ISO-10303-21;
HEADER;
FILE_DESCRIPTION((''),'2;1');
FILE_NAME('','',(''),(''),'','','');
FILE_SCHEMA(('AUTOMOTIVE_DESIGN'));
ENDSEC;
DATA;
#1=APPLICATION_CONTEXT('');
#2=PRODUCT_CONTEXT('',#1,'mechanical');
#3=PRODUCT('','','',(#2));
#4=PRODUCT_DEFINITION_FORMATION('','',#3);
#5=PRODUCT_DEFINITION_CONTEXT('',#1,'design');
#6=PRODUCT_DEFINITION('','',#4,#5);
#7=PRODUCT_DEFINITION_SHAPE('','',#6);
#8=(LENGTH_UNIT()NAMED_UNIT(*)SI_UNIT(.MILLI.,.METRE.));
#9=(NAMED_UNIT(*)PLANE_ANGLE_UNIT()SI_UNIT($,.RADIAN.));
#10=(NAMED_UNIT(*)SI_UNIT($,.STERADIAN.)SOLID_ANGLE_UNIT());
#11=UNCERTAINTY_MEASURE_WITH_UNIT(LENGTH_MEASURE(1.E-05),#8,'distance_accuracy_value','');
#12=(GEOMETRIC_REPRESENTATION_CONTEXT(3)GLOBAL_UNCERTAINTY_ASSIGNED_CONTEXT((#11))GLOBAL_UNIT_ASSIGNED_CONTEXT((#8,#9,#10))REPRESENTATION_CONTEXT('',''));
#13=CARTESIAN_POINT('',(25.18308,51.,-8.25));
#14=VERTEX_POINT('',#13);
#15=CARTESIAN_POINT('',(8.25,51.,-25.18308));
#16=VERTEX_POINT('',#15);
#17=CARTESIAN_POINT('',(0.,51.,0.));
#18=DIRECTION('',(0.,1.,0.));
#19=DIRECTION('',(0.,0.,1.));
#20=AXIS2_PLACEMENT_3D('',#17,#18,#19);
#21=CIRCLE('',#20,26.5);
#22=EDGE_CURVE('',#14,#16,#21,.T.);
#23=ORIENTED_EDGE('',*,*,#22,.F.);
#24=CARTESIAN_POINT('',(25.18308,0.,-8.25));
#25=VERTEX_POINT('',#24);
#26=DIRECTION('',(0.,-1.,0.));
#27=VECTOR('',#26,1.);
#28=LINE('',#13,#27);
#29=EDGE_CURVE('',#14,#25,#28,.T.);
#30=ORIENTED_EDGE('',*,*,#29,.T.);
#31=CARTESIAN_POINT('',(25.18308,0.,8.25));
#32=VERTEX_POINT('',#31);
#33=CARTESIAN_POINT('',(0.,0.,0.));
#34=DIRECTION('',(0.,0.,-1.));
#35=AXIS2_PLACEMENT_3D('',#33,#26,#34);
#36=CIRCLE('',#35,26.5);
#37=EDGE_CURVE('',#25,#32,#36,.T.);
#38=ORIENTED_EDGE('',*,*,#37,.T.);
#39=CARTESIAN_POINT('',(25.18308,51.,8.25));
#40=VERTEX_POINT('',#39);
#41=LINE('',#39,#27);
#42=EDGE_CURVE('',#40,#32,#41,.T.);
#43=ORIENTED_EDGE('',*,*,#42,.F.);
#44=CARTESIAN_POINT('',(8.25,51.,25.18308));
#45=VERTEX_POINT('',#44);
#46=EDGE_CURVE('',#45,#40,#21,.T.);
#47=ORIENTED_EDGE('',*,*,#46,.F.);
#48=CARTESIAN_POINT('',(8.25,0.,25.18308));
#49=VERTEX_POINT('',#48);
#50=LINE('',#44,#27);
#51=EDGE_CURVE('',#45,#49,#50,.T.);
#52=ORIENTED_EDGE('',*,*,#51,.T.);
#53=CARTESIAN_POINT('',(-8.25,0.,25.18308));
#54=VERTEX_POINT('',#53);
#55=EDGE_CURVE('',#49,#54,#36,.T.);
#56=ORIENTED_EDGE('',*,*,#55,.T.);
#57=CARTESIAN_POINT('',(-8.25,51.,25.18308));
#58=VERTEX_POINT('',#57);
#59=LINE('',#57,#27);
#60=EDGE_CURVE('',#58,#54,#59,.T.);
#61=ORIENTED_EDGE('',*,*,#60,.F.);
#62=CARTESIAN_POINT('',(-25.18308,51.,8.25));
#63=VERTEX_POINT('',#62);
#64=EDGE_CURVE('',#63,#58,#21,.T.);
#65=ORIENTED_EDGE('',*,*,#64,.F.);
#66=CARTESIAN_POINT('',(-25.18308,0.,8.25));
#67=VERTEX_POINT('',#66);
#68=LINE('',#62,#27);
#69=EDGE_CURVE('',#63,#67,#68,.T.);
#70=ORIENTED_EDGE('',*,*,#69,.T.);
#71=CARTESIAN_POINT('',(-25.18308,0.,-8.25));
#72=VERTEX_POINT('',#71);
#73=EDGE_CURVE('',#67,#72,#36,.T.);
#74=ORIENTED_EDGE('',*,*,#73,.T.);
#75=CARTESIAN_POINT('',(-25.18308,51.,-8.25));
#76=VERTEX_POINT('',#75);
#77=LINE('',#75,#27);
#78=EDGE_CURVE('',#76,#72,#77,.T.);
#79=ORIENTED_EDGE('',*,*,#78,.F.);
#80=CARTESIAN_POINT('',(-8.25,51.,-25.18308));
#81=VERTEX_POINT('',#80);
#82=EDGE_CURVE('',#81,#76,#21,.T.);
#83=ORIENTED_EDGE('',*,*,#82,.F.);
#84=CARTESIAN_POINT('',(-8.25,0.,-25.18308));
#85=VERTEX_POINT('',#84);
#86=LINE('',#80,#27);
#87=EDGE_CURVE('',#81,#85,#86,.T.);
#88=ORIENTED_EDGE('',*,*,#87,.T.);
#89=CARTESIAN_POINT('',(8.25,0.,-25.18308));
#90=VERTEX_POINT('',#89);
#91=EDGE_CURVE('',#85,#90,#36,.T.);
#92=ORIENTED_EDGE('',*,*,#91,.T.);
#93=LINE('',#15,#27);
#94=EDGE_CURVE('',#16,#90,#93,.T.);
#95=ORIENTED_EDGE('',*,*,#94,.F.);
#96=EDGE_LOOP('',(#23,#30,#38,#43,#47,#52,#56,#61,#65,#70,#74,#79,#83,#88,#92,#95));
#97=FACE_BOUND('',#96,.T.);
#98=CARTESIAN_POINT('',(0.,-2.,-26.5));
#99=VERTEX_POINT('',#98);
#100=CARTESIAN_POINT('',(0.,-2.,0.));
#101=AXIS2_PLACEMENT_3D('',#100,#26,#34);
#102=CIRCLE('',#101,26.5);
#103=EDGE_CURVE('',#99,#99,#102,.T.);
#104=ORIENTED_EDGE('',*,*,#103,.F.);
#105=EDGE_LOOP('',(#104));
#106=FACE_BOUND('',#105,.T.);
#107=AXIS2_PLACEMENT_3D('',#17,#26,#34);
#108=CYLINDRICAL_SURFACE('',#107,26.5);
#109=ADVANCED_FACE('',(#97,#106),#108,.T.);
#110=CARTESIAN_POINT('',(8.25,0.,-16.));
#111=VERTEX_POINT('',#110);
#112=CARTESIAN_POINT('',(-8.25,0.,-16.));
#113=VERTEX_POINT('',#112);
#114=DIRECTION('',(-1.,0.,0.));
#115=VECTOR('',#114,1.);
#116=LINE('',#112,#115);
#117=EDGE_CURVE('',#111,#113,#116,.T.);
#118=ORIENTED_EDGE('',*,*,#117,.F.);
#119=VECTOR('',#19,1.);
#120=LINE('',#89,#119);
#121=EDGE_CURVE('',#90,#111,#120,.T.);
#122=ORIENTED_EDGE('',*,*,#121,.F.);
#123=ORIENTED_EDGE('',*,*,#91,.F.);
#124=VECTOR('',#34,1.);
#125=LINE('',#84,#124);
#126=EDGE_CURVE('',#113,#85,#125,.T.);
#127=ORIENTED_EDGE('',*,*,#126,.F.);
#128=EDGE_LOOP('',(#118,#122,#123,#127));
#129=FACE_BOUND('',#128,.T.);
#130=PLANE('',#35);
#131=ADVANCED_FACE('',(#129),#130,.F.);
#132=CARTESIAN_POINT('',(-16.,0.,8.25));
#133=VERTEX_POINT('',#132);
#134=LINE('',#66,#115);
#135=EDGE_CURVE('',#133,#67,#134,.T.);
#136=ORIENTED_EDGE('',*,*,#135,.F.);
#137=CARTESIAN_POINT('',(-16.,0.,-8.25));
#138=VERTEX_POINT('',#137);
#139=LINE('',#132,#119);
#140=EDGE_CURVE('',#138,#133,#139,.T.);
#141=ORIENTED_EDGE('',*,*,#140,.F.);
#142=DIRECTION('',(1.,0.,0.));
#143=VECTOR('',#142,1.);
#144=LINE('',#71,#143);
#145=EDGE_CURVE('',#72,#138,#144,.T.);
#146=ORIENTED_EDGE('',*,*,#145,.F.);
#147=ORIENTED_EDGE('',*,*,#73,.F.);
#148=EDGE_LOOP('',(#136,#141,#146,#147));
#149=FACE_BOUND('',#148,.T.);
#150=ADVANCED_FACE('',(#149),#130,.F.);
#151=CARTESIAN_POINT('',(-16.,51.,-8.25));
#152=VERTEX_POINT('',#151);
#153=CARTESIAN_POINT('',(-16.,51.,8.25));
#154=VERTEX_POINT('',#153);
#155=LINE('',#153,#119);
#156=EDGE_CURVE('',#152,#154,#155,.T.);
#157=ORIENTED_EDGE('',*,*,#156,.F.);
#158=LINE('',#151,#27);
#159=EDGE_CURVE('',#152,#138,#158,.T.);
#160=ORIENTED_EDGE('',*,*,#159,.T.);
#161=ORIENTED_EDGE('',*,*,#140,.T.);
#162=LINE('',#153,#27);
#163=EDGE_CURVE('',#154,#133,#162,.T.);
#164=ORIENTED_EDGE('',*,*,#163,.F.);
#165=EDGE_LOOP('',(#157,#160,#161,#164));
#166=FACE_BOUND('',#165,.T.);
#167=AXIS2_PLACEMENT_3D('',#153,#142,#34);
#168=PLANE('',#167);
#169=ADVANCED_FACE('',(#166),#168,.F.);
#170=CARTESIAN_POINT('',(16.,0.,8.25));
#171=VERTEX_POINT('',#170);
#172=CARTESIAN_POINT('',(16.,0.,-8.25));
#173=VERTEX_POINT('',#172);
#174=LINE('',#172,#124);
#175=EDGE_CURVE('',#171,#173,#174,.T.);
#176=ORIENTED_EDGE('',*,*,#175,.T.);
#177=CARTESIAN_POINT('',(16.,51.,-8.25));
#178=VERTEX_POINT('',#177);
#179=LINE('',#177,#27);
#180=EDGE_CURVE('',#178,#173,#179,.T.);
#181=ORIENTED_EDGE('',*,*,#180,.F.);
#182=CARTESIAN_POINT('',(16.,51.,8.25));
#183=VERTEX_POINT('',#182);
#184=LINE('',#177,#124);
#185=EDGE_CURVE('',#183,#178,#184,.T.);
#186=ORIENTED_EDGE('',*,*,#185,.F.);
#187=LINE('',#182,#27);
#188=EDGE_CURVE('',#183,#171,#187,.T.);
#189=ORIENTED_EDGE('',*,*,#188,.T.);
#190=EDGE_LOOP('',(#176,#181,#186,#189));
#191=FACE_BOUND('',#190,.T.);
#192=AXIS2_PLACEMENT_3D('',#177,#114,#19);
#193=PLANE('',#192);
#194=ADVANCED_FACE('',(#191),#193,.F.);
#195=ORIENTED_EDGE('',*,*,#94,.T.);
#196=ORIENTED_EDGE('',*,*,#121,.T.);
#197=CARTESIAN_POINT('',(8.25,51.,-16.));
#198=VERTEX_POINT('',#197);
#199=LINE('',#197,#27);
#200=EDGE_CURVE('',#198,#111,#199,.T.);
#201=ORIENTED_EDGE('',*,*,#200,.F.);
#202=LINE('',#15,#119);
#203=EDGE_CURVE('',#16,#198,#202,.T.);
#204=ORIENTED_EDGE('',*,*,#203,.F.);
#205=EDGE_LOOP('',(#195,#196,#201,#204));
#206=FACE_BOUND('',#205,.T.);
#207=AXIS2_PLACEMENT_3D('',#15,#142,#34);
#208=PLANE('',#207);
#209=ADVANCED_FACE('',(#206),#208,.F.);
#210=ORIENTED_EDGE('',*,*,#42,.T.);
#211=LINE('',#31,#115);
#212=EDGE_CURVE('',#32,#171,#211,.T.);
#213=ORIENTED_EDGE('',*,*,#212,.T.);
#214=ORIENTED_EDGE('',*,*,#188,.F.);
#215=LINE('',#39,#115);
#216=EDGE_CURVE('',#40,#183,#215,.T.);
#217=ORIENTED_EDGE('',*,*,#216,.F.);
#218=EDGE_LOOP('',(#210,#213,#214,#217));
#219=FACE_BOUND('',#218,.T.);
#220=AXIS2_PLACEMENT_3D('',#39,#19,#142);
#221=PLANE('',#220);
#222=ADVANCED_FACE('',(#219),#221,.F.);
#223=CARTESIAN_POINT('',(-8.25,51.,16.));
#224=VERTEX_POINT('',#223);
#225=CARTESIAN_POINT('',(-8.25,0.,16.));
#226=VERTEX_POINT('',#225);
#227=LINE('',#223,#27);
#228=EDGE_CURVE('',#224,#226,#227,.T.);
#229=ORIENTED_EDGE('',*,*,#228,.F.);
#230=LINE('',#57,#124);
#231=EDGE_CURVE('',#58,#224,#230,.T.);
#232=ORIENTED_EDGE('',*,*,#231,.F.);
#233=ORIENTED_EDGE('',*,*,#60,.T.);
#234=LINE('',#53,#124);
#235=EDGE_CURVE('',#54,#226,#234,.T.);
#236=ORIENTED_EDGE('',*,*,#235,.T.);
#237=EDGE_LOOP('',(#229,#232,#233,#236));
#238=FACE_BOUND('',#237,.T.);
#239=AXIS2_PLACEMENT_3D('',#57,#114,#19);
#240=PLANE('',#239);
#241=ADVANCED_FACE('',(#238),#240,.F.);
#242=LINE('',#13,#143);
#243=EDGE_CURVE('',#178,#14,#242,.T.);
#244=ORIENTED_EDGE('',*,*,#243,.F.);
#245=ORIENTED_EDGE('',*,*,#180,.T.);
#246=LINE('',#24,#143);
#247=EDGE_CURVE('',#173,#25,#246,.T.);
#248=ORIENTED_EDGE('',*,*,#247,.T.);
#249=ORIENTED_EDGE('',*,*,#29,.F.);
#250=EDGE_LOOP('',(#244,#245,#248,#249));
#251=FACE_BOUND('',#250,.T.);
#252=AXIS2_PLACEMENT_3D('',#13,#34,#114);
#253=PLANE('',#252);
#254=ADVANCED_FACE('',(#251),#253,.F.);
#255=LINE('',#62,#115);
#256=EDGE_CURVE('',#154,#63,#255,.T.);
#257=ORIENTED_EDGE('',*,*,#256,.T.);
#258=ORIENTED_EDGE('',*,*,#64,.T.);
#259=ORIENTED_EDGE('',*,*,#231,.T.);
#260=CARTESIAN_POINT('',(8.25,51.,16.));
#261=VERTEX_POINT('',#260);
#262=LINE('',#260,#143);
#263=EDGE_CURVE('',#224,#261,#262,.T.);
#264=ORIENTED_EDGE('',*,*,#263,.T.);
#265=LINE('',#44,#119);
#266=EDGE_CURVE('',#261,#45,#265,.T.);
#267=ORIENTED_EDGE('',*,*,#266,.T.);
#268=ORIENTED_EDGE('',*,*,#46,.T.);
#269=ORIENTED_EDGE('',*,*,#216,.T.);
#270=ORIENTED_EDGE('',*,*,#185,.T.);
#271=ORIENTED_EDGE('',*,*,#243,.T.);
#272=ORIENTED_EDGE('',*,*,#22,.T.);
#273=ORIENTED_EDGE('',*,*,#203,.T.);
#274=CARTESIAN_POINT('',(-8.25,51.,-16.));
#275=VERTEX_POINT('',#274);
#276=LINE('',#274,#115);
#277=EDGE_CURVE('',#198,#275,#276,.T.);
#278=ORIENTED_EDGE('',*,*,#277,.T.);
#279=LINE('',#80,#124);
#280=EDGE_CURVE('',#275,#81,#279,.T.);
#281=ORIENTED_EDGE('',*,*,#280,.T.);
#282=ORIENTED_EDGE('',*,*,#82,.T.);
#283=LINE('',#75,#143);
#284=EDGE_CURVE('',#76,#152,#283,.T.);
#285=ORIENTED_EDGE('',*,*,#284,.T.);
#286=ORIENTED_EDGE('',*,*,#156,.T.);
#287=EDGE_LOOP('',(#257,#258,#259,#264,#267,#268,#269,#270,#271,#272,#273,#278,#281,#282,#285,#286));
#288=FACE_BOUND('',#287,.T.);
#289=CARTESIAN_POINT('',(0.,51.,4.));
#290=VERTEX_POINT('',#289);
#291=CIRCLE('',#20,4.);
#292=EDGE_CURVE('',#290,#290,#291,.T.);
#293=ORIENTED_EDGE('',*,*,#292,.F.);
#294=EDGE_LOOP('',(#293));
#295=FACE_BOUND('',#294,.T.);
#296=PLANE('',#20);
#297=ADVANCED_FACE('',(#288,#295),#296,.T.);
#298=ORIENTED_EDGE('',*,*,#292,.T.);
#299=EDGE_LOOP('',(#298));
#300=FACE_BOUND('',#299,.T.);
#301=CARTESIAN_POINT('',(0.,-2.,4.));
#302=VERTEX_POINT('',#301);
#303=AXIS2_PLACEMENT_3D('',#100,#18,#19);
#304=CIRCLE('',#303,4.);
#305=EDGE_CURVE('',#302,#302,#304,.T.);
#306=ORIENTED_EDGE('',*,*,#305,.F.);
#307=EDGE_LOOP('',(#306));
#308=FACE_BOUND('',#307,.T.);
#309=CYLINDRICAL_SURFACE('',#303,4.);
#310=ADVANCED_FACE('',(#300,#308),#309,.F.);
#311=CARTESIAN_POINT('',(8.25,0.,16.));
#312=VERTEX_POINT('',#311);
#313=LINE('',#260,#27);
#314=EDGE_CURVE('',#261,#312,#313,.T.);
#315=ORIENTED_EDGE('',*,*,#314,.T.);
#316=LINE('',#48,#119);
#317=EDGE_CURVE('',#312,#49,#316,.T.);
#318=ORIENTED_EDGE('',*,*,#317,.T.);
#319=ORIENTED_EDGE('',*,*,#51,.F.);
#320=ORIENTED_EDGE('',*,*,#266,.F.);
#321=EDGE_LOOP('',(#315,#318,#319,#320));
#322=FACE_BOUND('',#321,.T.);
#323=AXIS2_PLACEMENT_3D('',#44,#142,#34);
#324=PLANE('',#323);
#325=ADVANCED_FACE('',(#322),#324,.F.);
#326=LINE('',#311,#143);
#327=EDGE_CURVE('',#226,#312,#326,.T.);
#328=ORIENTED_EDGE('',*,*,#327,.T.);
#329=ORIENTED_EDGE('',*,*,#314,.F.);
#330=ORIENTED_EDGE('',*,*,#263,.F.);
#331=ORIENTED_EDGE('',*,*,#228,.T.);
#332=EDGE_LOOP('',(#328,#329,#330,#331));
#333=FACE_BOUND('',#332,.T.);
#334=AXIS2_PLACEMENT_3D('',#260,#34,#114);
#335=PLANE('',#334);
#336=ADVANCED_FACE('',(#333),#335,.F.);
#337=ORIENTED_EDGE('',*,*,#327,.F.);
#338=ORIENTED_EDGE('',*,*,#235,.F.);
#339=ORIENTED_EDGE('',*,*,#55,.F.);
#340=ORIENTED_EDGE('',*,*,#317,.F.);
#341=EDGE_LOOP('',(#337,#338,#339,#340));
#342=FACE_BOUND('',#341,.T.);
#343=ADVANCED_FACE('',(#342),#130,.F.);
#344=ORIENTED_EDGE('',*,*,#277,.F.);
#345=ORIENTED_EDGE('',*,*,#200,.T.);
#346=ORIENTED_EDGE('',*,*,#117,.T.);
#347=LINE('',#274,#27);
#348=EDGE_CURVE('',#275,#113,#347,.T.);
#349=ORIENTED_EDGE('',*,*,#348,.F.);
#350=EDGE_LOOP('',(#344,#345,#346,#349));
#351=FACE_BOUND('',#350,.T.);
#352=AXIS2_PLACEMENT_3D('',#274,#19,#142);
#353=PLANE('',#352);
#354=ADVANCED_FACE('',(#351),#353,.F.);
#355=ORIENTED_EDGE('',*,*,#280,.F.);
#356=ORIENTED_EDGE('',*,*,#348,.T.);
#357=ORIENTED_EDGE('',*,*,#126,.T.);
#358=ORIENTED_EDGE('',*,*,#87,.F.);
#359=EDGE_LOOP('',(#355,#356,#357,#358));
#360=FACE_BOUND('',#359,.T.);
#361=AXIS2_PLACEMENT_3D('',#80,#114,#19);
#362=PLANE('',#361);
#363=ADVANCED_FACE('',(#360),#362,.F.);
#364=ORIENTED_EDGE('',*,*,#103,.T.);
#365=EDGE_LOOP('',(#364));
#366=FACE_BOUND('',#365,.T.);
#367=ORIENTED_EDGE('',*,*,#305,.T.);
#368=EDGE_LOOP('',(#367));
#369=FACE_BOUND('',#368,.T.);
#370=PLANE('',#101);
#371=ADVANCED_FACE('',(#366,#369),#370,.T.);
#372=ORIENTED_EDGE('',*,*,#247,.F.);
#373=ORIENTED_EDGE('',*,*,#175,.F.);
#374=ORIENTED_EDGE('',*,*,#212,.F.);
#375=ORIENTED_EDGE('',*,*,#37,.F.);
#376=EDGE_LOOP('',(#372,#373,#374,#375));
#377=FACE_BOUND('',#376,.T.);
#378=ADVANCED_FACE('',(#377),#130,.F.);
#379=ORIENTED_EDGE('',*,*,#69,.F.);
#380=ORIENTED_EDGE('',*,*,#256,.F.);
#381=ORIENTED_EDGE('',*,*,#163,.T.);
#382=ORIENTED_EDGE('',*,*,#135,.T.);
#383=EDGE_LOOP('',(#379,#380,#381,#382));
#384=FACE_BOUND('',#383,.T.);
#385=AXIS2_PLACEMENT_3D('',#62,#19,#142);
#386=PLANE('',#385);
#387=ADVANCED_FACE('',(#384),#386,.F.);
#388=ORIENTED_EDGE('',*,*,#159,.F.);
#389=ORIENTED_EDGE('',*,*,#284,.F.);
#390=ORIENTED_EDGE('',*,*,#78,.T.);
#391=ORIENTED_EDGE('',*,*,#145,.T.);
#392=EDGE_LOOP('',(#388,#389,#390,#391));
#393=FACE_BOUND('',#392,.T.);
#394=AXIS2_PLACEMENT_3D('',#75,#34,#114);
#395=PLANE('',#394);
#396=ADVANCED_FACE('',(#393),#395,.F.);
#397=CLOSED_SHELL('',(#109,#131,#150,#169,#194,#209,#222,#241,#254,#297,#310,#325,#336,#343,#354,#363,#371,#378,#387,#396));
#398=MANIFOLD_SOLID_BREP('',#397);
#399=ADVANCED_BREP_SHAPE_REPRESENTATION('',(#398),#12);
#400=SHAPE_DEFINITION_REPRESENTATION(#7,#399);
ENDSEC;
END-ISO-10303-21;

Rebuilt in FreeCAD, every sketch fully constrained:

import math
import FreeCAD as App
import Part
import Sketcher
from FreeCAD import Vector
Q = App.Units.Quantity

doc = App.newDocument("Part")
params = doc.addObject("Spreadsheet::Sheet", "Params")
for row, (alias, value) in enumerate([
    ("sketch1_radius", "26.5 mm"),
    ("sketch1_width", "16.5 mm"),
    ("pad1_length", "51 mm"),
    ("sketch2_diameter", "53 mm"),
    ("pad2_length", "2 mm"),
    ("sketch3_diameter", "8 mm"),
], start=1):
    params.set(f"A{row}", alias)
    params.set(f"B{row}", "=" + value)
    params.setAlias(f"B{row}", alias)

body = doc.addObject("PartDesign::Body", "Body")

# Sketch on XZ plane
sketch1 = body.newObject("Sketcher::SketchObject", "Sketch")
sketch1.AttachmentSupport = (doc.getObject("XZ_Plane"), [""])
sketch1.MapMode = "FlatFace"
sketch1.addGeometry([
    Part.LineSegment(Vector(-8, -16, 0), Vector(-8, -25, 0)),  # 0
    Part.ArcOfCircle(Part.Circle(Vector(0, 0, 0), Vector(0, 0, 1), 27), math.radians(-162), math.radians(-108)),  # 1
    Part.LineSegment(Vector(-25, -8, 0), Vector(-16, -8, 0)),  # 2
    Part.LineSegment(Vector(-16, -8, 0), Vector(-16, 8, 0)),  # 3
    Part.LineSegment(Vector(-16, 8, 0), Vector(-25, 8, 0)),  # 4
    Part.ArcOfCircle(Part.Circle(Vector(0, 0, 0), Vector(0, 0, 1), 27), math.radians(108), math.radians(162)),  # 5
    Part.LineSegment(Vector(-8, 25, 0), Vector(-8, 16, 0)),  # 6
    Part.LineSegment(Vector(-8, 16, 0), Vector(8, 16, 0)),  # 7
    Part.LineSegment(Vector(8, 16, 0), Vector(8, 25, 0)),  # 8
    Part.ArcOfCircle(Part.Circle(Vector(0, 0, 0), Vector(0, 0, 1), 27), math.radians(18), math.radians(72)),  # 9
    Part.LineSegment(Vector(25, 8, 0), Vector(16, 8, 0)),  # 10
    Part.LineSegment(Vector(16, 8, 0), Vector(16, -8, 0)),  # 11
    Part.LineSegment(Vector(16, -8, 0), Vector(25, -8, 0)),  # 12
    Part.ArcOfCircle(Part.Circle(Vector(0, 0, 0), Vector(0, 0, 1), 27), math.radians(-72), math.radians(-18)),  # 13
    Part.LineSegment(Vector(8, -25, 0), Vector(8, -16, 0)),  # 14
    Part.LineSegment(Vector(8, -16, 0), Vector(-8, -16, 0)),  # 15
], False)
sketch1.addConstraint([
    Sketcher.Constraint("Coincident", 0, 2, 1, 2),
    Sketcher.Constraint("Coincident", 1, 1, 2, 1),
    Sketcher.Constraint("Coincident", 2, 2, 3, 1),
    Sketcher.Constraint("Coincident", 3, 2, 4, 1),
    Sketcher.Constraint("Coincident", 4, 2, 5, 2),
    Sketcher.Constraint("Coincident", 5, 1, 6, 1),
    Sketcher.Constraint("Coincident", 6, 2, 7, 1),
    Sketcher.Constraint("Coincident", 7, 2, 8, 1),
    Sketcher.Constraint("Coincident", 8, 2, 9, 2),
    Sketcher.Constraint("Coincident", 9, 1, 10, 1),
    Sketcher.Constraint("Coincident", 10, 2, 11, 1),
    Sketcher.Constraint("Coincident", 11, 2, 12, 1),
    Sketcher.Constraint("Coincident", 12, 2, 13, 2),
    Sketcher.Constraint("Coincident", 13, 1, 14, 1),
    Sketcher.Constraint("Coincident", 14, 2, 15, 1),
    Sketcher.Constraint("Coincident", 15, 2, 0, 1),
    Sketcher.Constraint("Vertical", 0),
    Sketcher.Constraint("Horizontal", 2),
    Sketcher.Constraint("Vertical", 3),
    Sketcher.Constraint("Horizontal", 4),
    Sketcher.Constraint("Vertical", 6),
    Sketcher.Constraint("Horizontal", 7),
    Sketcher.Constraint("Vertical", 8),
    Sketcher.Constraint("Horizontal", 10),
    Sketcher.Constraint("Vertical", 11),
    Sketcher.Constraint("Horizontal", 12),
    Sketcher.Constraint("Vertical", 14),
    Sketcher.Constraint("Horizontal", 15),
    Sketcher.Constraint("Coincident", 1, 3, -1, 1),
    Sketcher.Constraint("Coincident", 5, 3, -1, 1),
    Sketcher.Constraint("Coincident", 9, 3, -1, 1),
    Sketcher.Constraint("Coincident", 13, 3, -1, 1),
    Sketcher.Constraint("Equal", 1, 5),
    Sketcher.Constraint("Equal", 5, 9),
    Sketcher.Constraint("Equal", 9, 13),
    Sketcher.Constraint("Symmetric", 2, 2, 10, 2, -1, 1),
    Sketcher.Constraint("Symmetric", 6, 2, 14, 2, -1, 1),
    Sketcher.Constraint("Horizontal", 5, 1, 8, 2),
    Sketcher.Constraint("Horizontal", 4, 2, 9, 1),
    Sketcher.Constraint("Horizontal", 2, 2, 11, 2),
    Sketcher.Constraint("Horizontal", 0, 2, 13, 1),
    Sketcher.Constraint("Equal", 12, 0),
    Sketcher.Constraint("Equal", 15, 3),
    Sketcher.Constraint("Radius", 1, Q("26.5 mm")),
    Sketcher.Constraint("DistanceX", 7, 1, 7, 2, Q("16.5 mm")),
    Sketcher.Constraint("DistanceX", 2, 2, -1, 1, Q("16 mm")),
])
sketch1.setExpression("Constraints[43]", "Params.sketch1_radius")
sketch1.setExpression("Constraints[44]", "Params.sketch1_width")
pad1 = body.newObject("PartDesign::Pad", "Pad")
pad1.Profile = sketch1
pad1.setExpression("Length", "Params.pad1_length")
pad1.Reversed = True

# Sketch on XZ plane
sketch2 = body.newObject("Sketcher::SketchObject", "Sketch001")
sketch2.AttachmentSupport = (doc.getObject("XZ_Plane"), [""])
sketch2.MapMode = "FlatFace"
sketch2.addGeometry(Part.Circle(Vector(0, 0, 0), Vector(0, 0, 1), 26), False)
sketch2.addConstraint([
    Sketcher.Constraint("Coincident", 0, 3, -1, 1),
    Sketcher.Constraint("Diameter", 0, Q("53 mm")),
])
sketch2.setExpression("Constraints[1]", "Params.sketch2_diameter")
pad2 = body.newObject("PartDesign::Pad", "Pad001")
pad2.Profile = sketch2
pad2.setExpression("Length", "Params.pad2_length")

# Sketch on XZ plane
sketch3 = body.newObject("Sketcher::SketchObject", "Sketch002")
sketch3.AttachmentSupport = (doc.getObject("XZ_Plane"), [""])
sketch3.MapMode = "FlatFace"
sketch3.AttachmentOffset = App.Placement(Vector(0, 0, -51), App.Rotation())
sketch3.addGeometry(Part.Circle(Vector(0, 0, 0), Vector(0, 0, 1), 4), False)
sketch3.addConstraint([
    Sketcher.Constraint("Coincident", 0, 3, -1, 1),
    Sketcher.Constraint("Diameter", 0, Q("8 mm")),
])
sketch3.setExpression("Constraints[1]", "Params.sketch3_diameter")
pocket1 = body.newObject("PartDesign::Pocket", "Pocket")
pocket1.Profile = sketch3
pocket1.Type = "ThroughAll"
pocket1.Reversed = True

doc.recompute()
